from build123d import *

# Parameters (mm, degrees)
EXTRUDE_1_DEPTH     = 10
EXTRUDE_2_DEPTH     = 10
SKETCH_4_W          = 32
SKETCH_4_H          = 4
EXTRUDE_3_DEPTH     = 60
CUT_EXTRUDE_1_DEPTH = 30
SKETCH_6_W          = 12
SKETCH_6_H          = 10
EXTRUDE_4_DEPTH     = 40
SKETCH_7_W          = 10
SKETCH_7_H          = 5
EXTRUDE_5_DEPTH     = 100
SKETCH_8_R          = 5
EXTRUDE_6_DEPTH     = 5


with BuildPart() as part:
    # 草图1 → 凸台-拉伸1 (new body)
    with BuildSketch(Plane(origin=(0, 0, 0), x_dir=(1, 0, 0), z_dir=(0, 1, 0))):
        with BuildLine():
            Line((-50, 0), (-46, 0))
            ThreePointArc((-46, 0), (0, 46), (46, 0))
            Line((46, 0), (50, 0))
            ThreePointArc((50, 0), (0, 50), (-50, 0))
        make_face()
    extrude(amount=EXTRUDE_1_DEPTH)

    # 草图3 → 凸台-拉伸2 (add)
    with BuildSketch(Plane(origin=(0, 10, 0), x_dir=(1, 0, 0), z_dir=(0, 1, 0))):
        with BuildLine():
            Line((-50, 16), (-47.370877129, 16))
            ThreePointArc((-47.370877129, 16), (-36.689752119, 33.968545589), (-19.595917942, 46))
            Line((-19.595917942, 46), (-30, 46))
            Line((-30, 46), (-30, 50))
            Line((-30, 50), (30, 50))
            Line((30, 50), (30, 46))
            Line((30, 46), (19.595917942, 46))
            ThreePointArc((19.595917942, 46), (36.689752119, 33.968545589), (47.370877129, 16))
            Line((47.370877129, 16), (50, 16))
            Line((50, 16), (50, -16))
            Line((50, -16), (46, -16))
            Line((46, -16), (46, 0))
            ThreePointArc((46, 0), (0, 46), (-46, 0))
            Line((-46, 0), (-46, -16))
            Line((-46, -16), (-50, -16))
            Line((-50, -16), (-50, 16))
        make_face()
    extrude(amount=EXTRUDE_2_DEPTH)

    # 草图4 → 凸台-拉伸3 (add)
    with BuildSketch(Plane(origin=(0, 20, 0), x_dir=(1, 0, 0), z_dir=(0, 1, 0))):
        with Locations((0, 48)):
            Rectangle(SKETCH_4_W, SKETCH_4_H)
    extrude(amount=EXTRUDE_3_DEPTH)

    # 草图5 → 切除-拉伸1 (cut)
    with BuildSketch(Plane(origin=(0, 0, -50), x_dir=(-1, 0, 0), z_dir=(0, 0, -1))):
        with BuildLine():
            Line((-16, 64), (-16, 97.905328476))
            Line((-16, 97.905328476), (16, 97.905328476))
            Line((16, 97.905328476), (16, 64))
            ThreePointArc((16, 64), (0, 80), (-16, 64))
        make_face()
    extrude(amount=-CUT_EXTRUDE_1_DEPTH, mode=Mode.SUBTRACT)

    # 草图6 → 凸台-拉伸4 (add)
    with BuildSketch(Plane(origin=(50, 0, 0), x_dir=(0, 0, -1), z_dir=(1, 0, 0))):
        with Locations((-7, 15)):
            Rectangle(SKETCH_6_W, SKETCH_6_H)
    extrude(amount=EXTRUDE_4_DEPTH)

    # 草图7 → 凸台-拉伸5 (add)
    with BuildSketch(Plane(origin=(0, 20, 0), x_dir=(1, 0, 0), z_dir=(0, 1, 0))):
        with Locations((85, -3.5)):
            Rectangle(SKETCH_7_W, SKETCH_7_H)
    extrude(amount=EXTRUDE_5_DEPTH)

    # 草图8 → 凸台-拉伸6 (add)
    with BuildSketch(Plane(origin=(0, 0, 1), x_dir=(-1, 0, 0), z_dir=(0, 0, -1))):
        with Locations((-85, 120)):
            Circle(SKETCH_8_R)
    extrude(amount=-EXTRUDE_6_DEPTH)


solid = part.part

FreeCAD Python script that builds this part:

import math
import FreeCAD as App
import Part
import Sketcher
Q = App.Units.Quantity

doc = App.newDocument("Part")
params = doc.addObject("Spreadsheet::Sheet", "Params")
for row, (alias, value) in enumerate([
    ("sketch1_radius", "46 mm"),
    ("sketch1_radius2", "50 mm"),
    ("pad1_length", "10 mm"),
    ("sketch2_radius", "46 mm"),
    ("sketch2_radius2", "50 mm"),
    ("sketch2_width", "4 mm"),
    ("sketch2_width2", "60 mm"),
    ("sketch2_height", "32 mm"),
    ("pad2_length", "10 mm"),
    ("sketch3_width", "32 mm"),
    ("sketch3_height", "4 mm"),
    ("pad3_length", "60 mm"),
    ("sketch4_radius", "16 mm"),
    ("pocket1_length", "30 mm"),
    ("sketch5_width", "10 mm"),
    ("sketch5_height", "12 mm"),
    ("pad4_length", "40 mm"),
    ("sketch6_width", "10 mm"),
    ("sketch6_height", "5 mm"),
    ("pad5_length", "100 mm"),
    ("sketch7_diameter", "10 mm"),
    ("pad6_length", "5 mm"),
], start=1):
    params.set(f"A{row}", alias)
    params.set(f"B{row}", "=" + value)
    params.setAlias(f"B{row}", alias)

body = doc.addObject("PartDesign::Body", "Body")

sketch1 = body.newObject("Sketcher::SketchObject", "Sketch")
sketch1.AttachmentSupport = (doc.getObject("XZ_Plane"), [""])
sketch1.MapMode = "FlatFace"
sketch1.addGeometry(Part.LineSegment(App.Vector(-50, 0, 0), App.Vector(-46, 0, 0)), False)
sketch1.addGeometry(Part.ArcOfCircle(Part.Circle(App.Vector(0, 0, 0), App.Vector(0, 0, 1), 46), math.radians(180), math.radians(360)), False)
sketch1.addGeometry(Part.LineSegment(App.Vector(46, 0, 0), App.Vector(50, 0, 0)), False)
sketch1.addGeometry(Part.ArcOfCircle(Part.Circle(App.Vector(0, 0, 0), App.Vector(0, 0, 1), 50), math.radians(180), math.radians(360)), False)
sketch1.addConstraint(Sketcher.Constraint("Coincident", 0, 2, 1, 1))
sketch1.addConstraint(Sketcher.Constraint("Coincident", 1, 2, 2, 1))
sketch1.addConstraint(Sketcher.Constraint("Coincident", 2, 2, 3, 2))
sketch1.addConstraint(Sketcher.Constraint("Coincident", 3, 1, 0, 1))
sketch1.addConstraint(Sketcher.Constraint("Horizontal", 0))
sketch1.addConstraint(Sketcher.Constraint("Horizontal", 2))
sketch1.addConstraint(Sketcher.Constraint("Coincident", 1, 3, -1, 1))
sketch1.addConstraint(Sketcher.Constraint("Coincident", 3, 3, -1, 1))
sketch1.addConstraint(Sketcher.Constraint("PointOnObject", 0, 2, -1))
sketch1.addConstraint(Sketcher.Constraint("PointOnObject", 1, 2, -1))
sketch1.addConstraint(Sketcher.Constraint("Radius", 1, Q("46 mm")))
sketch1.addConstraint(Sketcher.Constraint("Radius", 3, Q("50 mm")))
sketch1.setExpression("Constraints[10]", "Params.sketch1_radius")
sketch1.setExpression("Constraints[11]", "Params.sketch1_radius2")
pad1 = body.newObject("PartDesign::Pad", "Pad")
pad1.Profile = sketch1
pad1.setExpression("Length", "Params.pad1_length")
pad1.Reversed = True

sketch2 = body.newObject("Sketcher::SketchObject", "Sketch001")
sketch2.AttachmentSupport = (doc.getObject("XZ_Plane"), [""])
sketch2.MapMode = "FlatFace"
sketch2.AttachmentOffset = App.Placement(App.Vector(0, 0, -10), App.Rotation())
sketch2.addGeometry(Part.LineSegment(App.Vector(-47.4, -16, 0), App.Vector(-50, -16, 0)), False)
sketch2.addGeometry(Part.LineSegment(App.Vector(-50, -16, 0), App.Vector(-50, 16, 0)), False)
sketch2.addGeometry(Part.LineSegment(App.Vector(-50, 16, 0), App.Vector(-46, 16, 0)), False)
sketch2.addGeometry(Part.LineSegment(App.Vector(-46, 16, 0), App.Vector(-46, 0, 0)), False)
sketch2.addGeometry(Part.ArcOfCircle(Part.Circle(App.Vector(0, 0, 0), App.Vector(0, 0, 1), 46), math.radians(180), math.radians(360)), False)
sketch2.addGeometry(Part.LineSegment(App.Vector(46, 0, 0), App.Vector(46, 16, 0)), False)
sketch2.addGeometry(Part.LineSegment(App.Vector(46, 16, 0), App.Vector(50, 16, 0)), False)
sketch2.addGeometry(Part.LineSegment(App.Vector(50, 16, 0), App.Vector(50, -16, 0)), False)
sketch2.addGeometry(Part.LineSegment(App.Vector(50, -16, 0), App.Vector(47.4, -16, 0)), False)
sketch2.addGeometry(Part.ArcOfCircle(Part.Circle(App.Vector(0, 0, 0), App.Vector(0, 0, 1), 50), math.radians(-67), math.radians(-19)), False)
sketch2.addGeometry(Part.LineSegment(App.Vector(19.6, -46, 0), App.Vector(30, -46, 0)), False)
sketch2.addGeometry(Part.LineSegment(App.Vector(30, -46, 0), App.Vector(30, -50, 0)), False)
sketch2.addGeometry(Part.LineSegment(App.Vector(30, -50, 0), App.Vector(-30, -50, 0)), False)
sketch2.addGeometry(Part.LineSegment(App.Vector(-30, -50, 0), App.Vector(-30, -46, 0)), False)
sketch2.addGeometry(Part.LineSegment(App.Vector(-30, -46, 0), App.Vector(-19.6, -46, 0)), False)
sketch2.addGeometry(Part.ArcOfCircle(Part.Circle(App.Vector(0, 0, 0), App.Vector(0, 0, 1), 50), math.radians(-161), math.radians(-113)), False)
sketch2.addConstraint(Sketcher.Constraint("Coincident", 0, 2, 1, 1))
sketch2.addConstraint(Sketcher.Constraint("Coincident", 1, 2, 2, 1))
sketch2.addConstraint(Sketcher.Constraint("Coincident", 2, 2, 3, 1))
sketch2.addConstraint(Sketcher.Constraint("Tangent", 3, 2, 4, 1))
sketch2.addConstraint(Sketcher.Constraint("Tangent", 4, 2, 5, 1))
sketch2.addConstraint(Sketcher.Constraint("Coincident", 5, 2, 6, 1))
sketch2.addConstraint(Sketcher.Constraint("Coincident", 6, 2, 7, 1))
sketch2.addConstraint(Sketcher.Constraint("Coincident", 7, 2, 8, 1))
sketch2.addConstraint(Sketcher.Constraint("Coincident", 8, 2, 9, 2))
sketch2.addConstraint(Sketcher.Constraint("Coincident", 9, 1, 10, 1))
sketch2.addConstraint(Sketcher.Constraint("Coincident", 10, 2, 11, 1))
sketch2.addConstraint(Sketcher.Constraint("Coincident", 11, 2, 12, 1))
sketch2.addConstraint(Sketcher.Constraint("Coincident", 12, 2, 13, 1))
sketch2.addConstraint(Sketcher.Constraint("Coincident", 13, 2, 14, 1))
sketch2.addConstraint(Sketcher.Constraint("Coincident", 14, 2, 15, 2))
sketch2.addConstraint(Sketcher.Constraint("Coincident", 15, 1, 0, 1))
sketch2.addConstraint(Sketcher.Constraint("Horizontal", 0))
sketch2.addConstraint(Sketcher.Constraint("Vertical", 1))
sketch2.addConstraint(Sketcher.Constraint("Horizontal", 2))
sketch2.addConstraint(Sketcher.Constraint("Vertical", 3))
sketch2.addConstraint(Sketcher.Constraint("Vertical", 5))
sketch2.addConstraint(Sketcher.Constraint("Horizontal", 6))
sketch2.addConstraint(Sketcher.Constraint("Vertical", 7))
sketch2.addConstraint(Sketcher.Constraint("Horizontal", 8))
sketch2.addConstraint(Sketcher.Constraint("Horizontal", 10))
sketch2.addConstraint(Sketcher.Constraint("Vertical", 11))
sketch2.addConstraint(Sketcher.Constraint("Horizontal", 12))
sketch2.addConstraint(Sketcher.Constraint("Vertical", 13))
sketch2.addConstraint(Sketcher.Constraint("Horizontal", 14))
sketch2.addConstraint(Sketcher.Constraint("Coincident", 4, 3, -1, 1))
sketch2.addConstraint(Sketcher.Constraint("Coincident", 9, 3, -1, 1))
sketch2.addConstraint(Sketcher.Constraint("Coincident", 15, 3, -1, 1))
sketch2.addConstraint(Sketcher.Constraint("Equal", 9, 15))
sketch2.addConstraint(Sketcher.Constraint("Symmetric", 0, 2, 6, 2, -1, 1))
sketch2.addConstraint(Sketcher.Constraint("Symmetric", 10, 2, 13, 2, -2))
sketch2.addConstraint(Sketcher.Constraint("Horizontal", 2, 2, 5, 2))
sketch2.addConstraint(Sketcher.Constraint("Horizontal", 0, 2, 7, 2))
sketch2.addConstraint(Sketcher.Constraint("Equal", 6, 11))
sketch2.addConstraint(Sketcher.Constraint("Radius", 4, Q("46 mm")))
sketch2.addConstraint(Sketcher.Constraint("Radius", 9, Q("50 mm")))
sketch2.addConstraint(Sketcher.Constraint("DistanceX", 2, 1, 2, 2, Q("4 mm")))
sketch2.addConstraint(Sketcher.Constraint("DistanceX", 12, 2, 12, 1, Q("60 mm")))
sketch2.addConstraint(Sketcher.Constraint("DistanceY", 1, 1, 1, 2, Q("32 mm")))
sketch2.addConstraint(Sketcher.Constraint("DistanceY", 9, 1, -1, 1, Q("46 mm")))
sketch2.setExpression("Constraints[38]", "Params.sketch2_radius")
sketch2.setExpression("Constraints[39]", "Params.sketch2_radius2")
sketch2.setExpression("Constraints[40]", "Params.sketch2_width")
sketch2.setExpression("Constraints[41]", "Params.sketch2_width2")
sketch2.setExpression("Constraints[42]", "Params.sketch2_height")
pad2 = body.newObject("PartDesign::Pad", "Pad001")
pad2.Profile = sketch2
pad2.setExpression("Length", "Params.pad2_length")
pad2.Reversed = True

sketch3 = body.newObject("Sketcher::SketchObject", "Sketch002")
sketch3.AttachmentSupport = (doc.getObject("XZ_Plane"), [""])
sketch3.MapMode = "FlatFace"
sketch3.AttachmentOffset = App.Placement(App.Vector(0, 0, -20), App.Rotation())
sketch3.addGeometry(Part.LineSegment(App.Vector(-16, -50, 0), App.Vector(-16, -46, 0)), False)
sketch3.addGeometry(Part.LineSegment(App.Vector(-16, -46, 0), App.Vector(16, -46, 0)), False)
sketch3.addGeometry(Part.LineSegment(App.Vector(16, -46, 0), App.Vector(16, -50, 0)), False)
sketch3.addGeometry(Part.LineSegment(App.Vector(16, -50, 0), App.Vector(-16, -50, 0)), False)
sketch3.addConstraint(Sketcher.Constraint("Coincident", 0, 2, 1, 1))
sketch3.addConstraint(Sketcher.Constraint("Coincident", 1, 2, 2, 1))
sketch3.addConstraint(Sketcher.Constraint("Coincident", 2, 2, 3, 1))
sketch3.addConstraint(Sketcher.Constraint("Coincident", 3, 2, 0, 1))
sketch3.addConstraint(Sketcher.Constraint("Vertical", 0))
sketch3.addConstraint(Sketcher.Constraint("Horizontal", 1))
sketch3.addConstraint(Sketcher.Constraint("Vertical", 2))
sketch3.addConstraint(Sketcher.Constraint("Horizontal", 3))
sketch3.addConstraint(Sketcher.Constraint("DistanceX", 1, 1, 1, 2, Q("32 mm")))
sketch3.addConstraint(Sketcher.Constraint("DistanceY", 0, 1, 0, 2, Q("4 mm")))
sketch3.addConstraint(Sketcher.Constraint("DistanceX", 0, 2, -1, 1, Q("16 mm")))
sketch3.addConstraint(Sketcher.Constraint("DistanceY", 0, 2, -1, 1, Q("46 mm")))
sketch3.setExpression("Constraints[8]", "Params.sketch3_width")
sketch3.setExpression("Constraints[9]", "Params.sketch3_height")
pad3 = body.newObject("PartDesign::Pad", "Pad002")
pad3.Profile = sketch3
pad3.setExpression("Length", "Params.pad3_length")
pad3.Reversed = True

sketch4 = body.newObject("Sketcher::SketchObject", "Sketch003")
sketch4.AttachmentSupport = (doc.getObject("XY_Plane"), [""])
sketch4.MapMode = "FlatFace"
sketch4.AttachmentOffset = App.Placement(App.Vector(0, 0, -50), App.Rotation())
sketch4.addGeometry(Part.LineSegment(App.Vector(16, 98, 0), App.Vector(16, 64, 0)), False)
sketch4.addGeometry(Part.ArcOfCircle(Part.Circle(App.Vector(0, 64, 0), App.Vector(0, 0, 1), 16), math.radians(0), math.radians(180)), False)
sketch4.addGeometry(Part.LineSegment(App.Vector(-16, 64, 0), App.Vector(-16, 98, 0)), False)
sketch4.addGeometry(Part.LineSegment(App.Vector(-16, 98, 0), App.Vector(16, 98, 0)), False)
sketch4.addConstraint(Sketcher.Constraint("Tangent", 0, 2, 1, 1))
sketch4.addConstraint(Sketcher.Constraint("Tangent", 1, 2, 2, 1))
sketch4.addConstraint(Sketcher.Constraint("Coincident", 2, 2, 3, 1))
sketch4.addConstraint(Sketcher.Constraint("Coincident", 3, 2, 0, 1))
sketch4.addConstraint(Sketcher.Constraint("Vertical", 0))
sketch4.addConstraint(Sketcher.Constraint("Vertical", 2))
sketch4.addConstraint(Sketcher.Constraint("Horizontal", 3))
sketch4.addConstraint(Sketcher.Constraint("PointOnObject", 1, 3, -2))
sketch4.addConstraint(Sketcher.Constraint("Radius", 1, Q("16 mm")))
sketch4.addConstraint(Sketcher.Constraint("DistanceY", -1, 1, 1, 3, Q("64 mm")))
sketch4.addConstraint(Sketcher.Constraint("DistanceY", 0, 2, 0, 1, Q("33.905328 mm")))
sketch4.setExpression("Constraints[8]", "Params.sketch4_radius")
pocket1 = body.newObject("PartDesign::Pocket", "Pocket")
pocket1.Profile = sketch4
pocket1.setExpression("Length", "Params.pocket1_length")
pocket1.Reversed = True

sketch5 = body.newObject("Sketcher::SketchObject", "Sketch004")
sketch5.AttachmentSupport = (doc.getObject("YZ_Plane"), [""])
sketch5.MapMode = "FlatFace"
sketch5.AttachmentOffset = App.Placement(App.Vector(0, 0, 50), App.Rotation())
sketch5.addGeometry(Part.LineSegment(App.Vector(20, 13, 0), App.Vector(10, 13, 0)), False)
sketch5.addGeometry(Part.LineSegment(App.Vector(10, 13, 0), App.Vector(10, 1, 0)), False)
sketch5.addGeometry(Part.LineSegment(App.Vector(10, 1, 0), App.Vector(20, 1, 0)), False)
sketch5.addGeometry(Part.LineSegment(App.Vector(20, 1, 0), App.Vector(20, 13, 0)), False)
sketch5.addConstraint(Sketcher.Constraint("Coincident", 0, 2, 1, 1))
sketch5.addConstraint(Sketcher.Constraint("Coincident", 1, 2, 2, 1))
sketch5.addConstraint(Sketcher.Constraint("Coincident", 2, 2, 3, 1))
sketch5.addConstraint(Sketcher.Constraint("Coincident", 3, 2, 0, 1))
sketch5.addConstraint(Sketcher.Constraint("Horizontal", 0))
sketch5.addConstraint(Sketcher.Constraint("Vertical", 1))
sketch5.addConstraint(Sketcher.Constraint("Horizontal", 2))
sketch5.addConstraint(Sketcher.Constraint("Vertical", 3))
sketch5.addConstraint(Sketcher.Constraint("DistanceX", 0, 2, 0, 1, Q("10 mm")))
sketch5.addConstraint(Sketcher.Constraint("DistanceY", 1, 2, 1, 1, Q("12 mm")))
sketch5.addConstraint(Sketcher.Constraint("DistanceX", -1, 1, 0, 2, Q("10 mm")))
sketch5.addConstraint(Sketcher.Constraint("DistanceY", -1, 1, 0, 2, Q("13 mm")))
sketch5.setExpression("Constraints[8]", "Params.sketch5_width")
sketch5.setExpression("Constraints[9]", "Params.sketch5_height")
pad4 = body.newObject("PartDesign::Pad", "Pad003")
pad4.Profile = sketch5
pad4.setExpression("Length", "Params.pad4_length")

sketch6 = body.newObject("Sketcher::SketchObject", "Sketch005")
sketch6.AttachmentSupport = (doc.getObject("XZ_Plane"), [""])
sketch6.MapMode = "FlatFace"
sketch6.AttachmentOffset = App.Placement(App.Vector(0, 0, -20), App.Rotation())
sketch6.addGeometry(Part.LineSegment(App.Vector(80, 1, 0), App.Vector(80, 6, 0)), False)
sketch6.addGeometry(Part.LineSegment(App.Vector(80, 6, 0), App.Vector(90, 6, 0)), False)
sketch6.addGeometry(Part.LineSegment(App.Vector(90, 6, 0), App.Vector(90, 1, 0)), False)
sketch6.addGeometry(Part.LineSegment(App.Vector(90, 1, 0), App.Vector(80, 1, 0)), False)
sketch6.addConstraint(Sketcher.Constraint("Coincident", 0, 2, 1, 1))
sketch6.addConstraint(Sketcher.Constraint("Coincident", 1, 2, 2, 1))
sketch6.addConstraint(Sketcher.Constraint("Coincident", 2, 2, 3, 1))
sketch6.addConstraint(Sketcher.Constraint("Coincident", 3, 2, 0, 1))
sketch6.addConstraint(Sketcher.Constraint("Vertical", 0))
sketch6.addConstraint(Sketcher.Constraint("Horizontal", 1))
sketch6.addConstraint(Sketcher.Constraint("Vertical", 2))
sketch6.addConstraint(Sketcher.Constraint("Horizontal", 3))
sketch6.addConstraint(Sketcher.Constraint("DistanceX", 1, 1, 1, 2, Q("10 mm")))
sketch6.addConstraint(Sketcher.Constraint("DistanceY", 0, 1, 0, 2, Q("5 mm")))
sketch6.addConstraint(Sketcher.Constraint("DistanceX", -1, 1, 0, 2, Q("80 mm")))
sketch6.addConstraint(Sketcher.Constraint("DistanceY", -1, 1, 0, 2, Q("6 mm")))
sketch6.setExpression("Constraints[8]", "Params.sketch6_width")
sketch6.setExpression("Constraints[9]", "Params.sketch6_height")
pad5 = body.newObject("PartDesign::Pad", "Pad004")
pad5.Profile = sketch6
pad5.setExpression("Length", "Params.pad5_length")
pad5.Reversed = True

sketch7 = body.newObject("Sketcher::SketchObject", "Sketch006")
sketch7.AttachmentSupport = (doc.getObject("XY_Plane"), [""])
sketch7.MapMode = "FlatFace"
sketch7.AttachmentOffset = App.Placement(App.Vector(0, 0, 1), App.Rotation())
sketch7.addGeometry(Part.Circle(App.Vector(85, 120, 0), App.Vector(0, 0, 1), 5), False)
sketch7.addConstraint(Sketcher.Constraint("Diameter", 0, Q("10 mm")))
sketch7.addConstraint(Sketcher.Constraint("DistanceX", -1, 1, 0, 3, Q("85 mm")))
sketch7.addConstraint(Sketcher.Constraint("DistanceY", -1, 1, 0, 3, Q("120 mm")))
sketch7.setExpression("Constraints[0]", "Params.sketch7_diameter")
pad6 = body.newObject("PartDesign::Pad", "Pad005")
pad6.Profile = sketch7
pad6.setExpression("Length", "Params.pad6_length")

doc.recompute()
